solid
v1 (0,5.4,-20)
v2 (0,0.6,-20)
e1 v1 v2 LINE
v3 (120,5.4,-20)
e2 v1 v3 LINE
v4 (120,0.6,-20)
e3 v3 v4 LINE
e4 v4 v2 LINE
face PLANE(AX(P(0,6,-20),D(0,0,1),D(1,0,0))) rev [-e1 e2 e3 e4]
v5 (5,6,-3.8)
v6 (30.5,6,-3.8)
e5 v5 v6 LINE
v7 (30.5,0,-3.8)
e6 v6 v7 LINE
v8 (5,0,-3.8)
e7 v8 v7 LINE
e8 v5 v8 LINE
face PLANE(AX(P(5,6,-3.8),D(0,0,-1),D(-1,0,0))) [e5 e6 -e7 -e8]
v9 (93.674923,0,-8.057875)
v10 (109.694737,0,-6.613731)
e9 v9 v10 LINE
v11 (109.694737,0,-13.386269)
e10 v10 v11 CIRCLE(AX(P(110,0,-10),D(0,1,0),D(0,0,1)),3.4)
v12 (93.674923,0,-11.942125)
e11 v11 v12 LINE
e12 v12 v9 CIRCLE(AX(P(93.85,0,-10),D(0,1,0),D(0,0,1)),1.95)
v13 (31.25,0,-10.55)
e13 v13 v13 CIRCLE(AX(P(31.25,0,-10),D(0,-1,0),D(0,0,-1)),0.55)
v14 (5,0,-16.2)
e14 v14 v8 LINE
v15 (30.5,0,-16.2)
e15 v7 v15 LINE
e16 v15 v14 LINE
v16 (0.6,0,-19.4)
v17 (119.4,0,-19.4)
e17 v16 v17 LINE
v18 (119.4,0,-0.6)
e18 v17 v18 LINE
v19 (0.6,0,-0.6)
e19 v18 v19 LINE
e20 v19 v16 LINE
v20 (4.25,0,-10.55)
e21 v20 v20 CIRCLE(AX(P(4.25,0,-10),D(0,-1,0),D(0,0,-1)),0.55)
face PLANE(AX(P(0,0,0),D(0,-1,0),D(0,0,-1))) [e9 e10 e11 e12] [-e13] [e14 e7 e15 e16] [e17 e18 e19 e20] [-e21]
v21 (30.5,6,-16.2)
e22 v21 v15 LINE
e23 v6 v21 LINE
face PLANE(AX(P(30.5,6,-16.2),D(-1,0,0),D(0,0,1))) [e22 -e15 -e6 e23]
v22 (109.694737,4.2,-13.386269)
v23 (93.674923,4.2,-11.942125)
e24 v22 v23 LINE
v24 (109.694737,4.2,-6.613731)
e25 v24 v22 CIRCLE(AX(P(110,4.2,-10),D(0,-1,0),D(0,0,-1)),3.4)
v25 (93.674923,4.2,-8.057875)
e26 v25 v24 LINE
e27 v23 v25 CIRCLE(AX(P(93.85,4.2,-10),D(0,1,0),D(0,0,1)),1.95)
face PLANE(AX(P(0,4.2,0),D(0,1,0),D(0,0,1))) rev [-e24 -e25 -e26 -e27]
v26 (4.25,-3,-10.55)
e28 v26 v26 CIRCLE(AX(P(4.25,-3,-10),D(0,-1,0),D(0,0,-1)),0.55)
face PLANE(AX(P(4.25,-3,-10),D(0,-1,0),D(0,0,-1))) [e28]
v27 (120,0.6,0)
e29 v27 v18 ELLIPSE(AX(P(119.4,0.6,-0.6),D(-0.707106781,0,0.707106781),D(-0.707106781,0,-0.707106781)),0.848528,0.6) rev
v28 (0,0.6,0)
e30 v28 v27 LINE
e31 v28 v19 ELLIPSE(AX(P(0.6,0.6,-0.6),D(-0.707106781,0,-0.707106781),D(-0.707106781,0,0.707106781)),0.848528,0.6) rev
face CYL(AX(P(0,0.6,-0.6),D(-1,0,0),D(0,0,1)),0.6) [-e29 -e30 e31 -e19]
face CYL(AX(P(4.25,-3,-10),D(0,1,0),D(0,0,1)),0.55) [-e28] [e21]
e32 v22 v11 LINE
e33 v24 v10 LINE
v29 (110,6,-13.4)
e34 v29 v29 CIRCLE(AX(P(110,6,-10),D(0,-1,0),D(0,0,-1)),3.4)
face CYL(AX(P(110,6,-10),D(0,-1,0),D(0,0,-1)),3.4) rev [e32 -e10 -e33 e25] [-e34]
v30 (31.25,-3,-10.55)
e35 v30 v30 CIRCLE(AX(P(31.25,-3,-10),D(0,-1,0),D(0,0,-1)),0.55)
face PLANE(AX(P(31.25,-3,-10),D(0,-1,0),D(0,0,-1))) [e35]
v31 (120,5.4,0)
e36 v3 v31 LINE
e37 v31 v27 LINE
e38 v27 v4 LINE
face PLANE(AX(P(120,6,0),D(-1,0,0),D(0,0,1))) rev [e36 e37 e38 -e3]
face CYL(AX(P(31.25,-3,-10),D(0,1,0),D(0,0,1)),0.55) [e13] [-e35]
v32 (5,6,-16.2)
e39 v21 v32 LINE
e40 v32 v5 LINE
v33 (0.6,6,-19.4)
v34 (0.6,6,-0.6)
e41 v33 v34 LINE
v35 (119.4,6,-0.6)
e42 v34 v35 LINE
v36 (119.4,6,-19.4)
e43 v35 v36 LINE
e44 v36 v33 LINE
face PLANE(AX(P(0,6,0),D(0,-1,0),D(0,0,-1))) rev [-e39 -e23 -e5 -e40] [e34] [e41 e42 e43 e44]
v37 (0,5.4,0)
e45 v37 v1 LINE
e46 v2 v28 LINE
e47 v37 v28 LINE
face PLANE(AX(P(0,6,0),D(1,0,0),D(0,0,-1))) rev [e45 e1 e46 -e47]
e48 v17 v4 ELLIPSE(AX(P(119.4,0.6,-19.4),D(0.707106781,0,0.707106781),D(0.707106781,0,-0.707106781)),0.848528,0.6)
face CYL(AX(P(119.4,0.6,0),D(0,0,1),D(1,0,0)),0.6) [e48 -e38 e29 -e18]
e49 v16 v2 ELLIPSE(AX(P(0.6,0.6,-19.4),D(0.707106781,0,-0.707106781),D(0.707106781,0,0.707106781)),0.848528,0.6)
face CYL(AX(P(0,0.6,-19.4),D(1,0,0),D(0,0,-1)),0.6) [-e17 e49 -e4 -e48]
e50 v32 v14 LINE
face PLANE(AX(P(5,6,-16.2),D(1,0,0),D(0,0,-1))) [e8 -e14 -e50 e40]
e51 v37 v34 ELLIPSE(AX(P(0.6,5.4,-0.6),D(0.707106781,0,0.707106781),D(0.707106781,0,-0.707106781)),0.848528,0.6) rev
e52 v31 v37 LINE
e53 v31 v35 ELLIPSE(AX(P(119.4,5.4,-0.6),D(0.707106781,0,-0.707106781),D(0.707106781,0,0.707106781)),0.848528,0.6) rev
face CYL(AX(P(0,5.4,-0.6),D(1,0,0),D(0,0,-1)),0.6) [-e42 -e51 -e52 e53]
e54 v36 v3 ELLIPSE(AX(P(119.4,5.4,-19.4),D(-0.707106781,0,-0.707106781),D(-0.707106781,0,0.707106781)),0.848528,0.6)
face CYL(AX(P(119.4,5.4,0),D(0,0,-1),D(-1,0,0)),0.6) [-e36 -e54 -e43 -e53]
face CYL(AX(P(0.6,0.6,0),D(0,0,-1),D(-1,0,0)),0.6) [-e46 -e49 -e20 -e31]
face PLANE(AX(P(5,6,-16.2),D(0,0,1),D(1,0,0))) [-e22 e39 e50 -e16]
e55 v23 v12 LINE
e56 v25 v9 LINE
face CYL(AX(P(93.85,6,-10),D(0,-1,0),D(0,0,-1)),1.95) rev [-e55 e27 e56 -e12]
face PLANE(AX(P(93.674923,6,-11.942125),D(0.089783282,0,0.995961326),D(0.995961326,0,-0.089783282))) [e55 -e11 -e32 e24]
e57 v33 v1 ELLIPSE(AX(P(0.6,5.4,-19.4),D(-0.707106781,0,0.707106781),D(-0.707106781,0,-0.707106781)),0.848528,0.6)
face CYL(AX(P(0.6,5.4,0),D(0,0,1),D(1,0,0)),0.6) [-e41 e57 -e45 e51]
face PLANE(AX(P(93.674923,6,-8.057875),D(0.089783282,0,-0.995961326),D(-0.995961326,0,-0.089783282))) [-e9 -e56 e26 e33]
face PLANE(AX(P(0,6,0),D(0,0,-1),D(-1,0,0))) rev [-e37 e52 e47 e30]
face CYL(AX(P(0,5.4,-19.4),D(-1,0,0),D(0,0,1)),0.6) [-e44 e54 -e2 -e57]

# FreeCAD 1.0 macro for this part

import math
import FreeCAD as App
import Part
import Sketcher

V = App.Vector


def edges_at(feature, points):
    """Names of the edges that pass closest to the given points."""
    edges = feature.Shape.Edges
    near = lambda p: min(range(len(edges)), key=lambda i: edges[i].distToShape(Part.Vertex(*p))[0])
    return sorted({f"Edge{near(p) + 1}" for p in points})

doc = App.newDocument("Part")
body = doc.addObject("PartDesign::Body", "Body")

sketch1 = body.newObject("Sketcher::SketchObject", "Sketch")
sketch1.AttachmentSupport = (doc.getObject("XZ_Plane"), [""])
sketch1.MapMode = "FlatFace"
sketch1.addGeometry([
    Part.LineSegment(V(0, -20, 0), V(0, 0, 0)),
    Part.LineSegment(V(0, 0, 0), V(120, 0, 0)),
    Part.LineSegment(V(120, 0, 0), V(120, -20, 0)),
    Part.LineSegment(V(120, -20, 0), V(0, -20, 0)),
    Part.LineSegment(V(30.5, -3.8, 0), V(5, -3.8, 0)),
    Part.LineSegment(V(5, -3.8, 0), V(5, -16.2, 0)),
    Part.LineSegment(V(5, -16.2, 0), V(30.5, -16.2, 0)),
    Part.LineSegment(V(30.5, -16.2, 0), V(30.5, -3.8, 0)),
    Part.ArcOfCircle(Part.Circle(V(93.8, -10, 0), V(0, 0, 1), 1.9), math.radians(95), math.radians(265)),
    Part.LineSegment(V(93.7, -11.9, 0), V(109.7, -13.4, 0)),
    Part.ArcOfCircle(Part.Circle(V(110, -10, 0), V(0, 0, 1), 3.4), math.radians(-95), math.radians(95)),
    Part.LineSegment(V(109.7, -6.6, 0), V(93.7, -8.1, 0)),
], False)
sketch1.addConstraint([
    Sketcher.Constraint("Coincident", 0, 2, 1, 1),
    Sketcher.Constraint("Coincident", 1, 2, 2, 1),
    Sketcher.Constraint("Coincident", 2, 2, 3, 1),
    Sketcher.Constraint("Coincident", 3, 2, 0, 1),
    Sketcher.Constraint("Coincident", 4, 2, 5, 1),
    Sketcher.Constraint("Coincident", 5, 2, 6, 1),
    Sketcher.Constraint("Coincident", 6, 2, 7, 1),
    Sketcher.Constraint("Coincident", 7, 2, 4, 1),
    Sketcher.Constraint("Tangent", 8, 2, 9, 1),
    Sketcher.Constraint("Tangent", 9, 2, 10, 1),
    Sketcher.Constraint("Tangent", 10, 2, 11, 1),
    Sketcher.Constraint("Tangent", 11, 2, 8, 1),
    Sketcher.Constraint("Vertical", 0),
    Sketcher.Constraint("Horizontal", 1),
    Sketcher.Constraint("Vertical", 2),
    Sketcher.Constraint("Horizontal", 3),
    Sketcher.Constraint("Horizontal", 4),
    Sketcher.Constraint("Vertical", 5),
    Sketcher.Constraint("Horizontal", 6),
    Sketcher.Constraint("Vertical", 7),
    Sketcher.Constraint("Coincident", 0, 2, -1, 1),
    Sketcher.Constraint("Horizontal", 8, 3, 10, 3),
    Sketcher.Constraint("Radius", 10, 3.4),
    Sketcher.Constraint("DistanceX", 1, 1, 1, 2, 120.0),
    Sketcher.Constraint("DistanceY", 0, 1, 0, 2, 20.0),
    Sketcher.Constraint("Radius", 8, 1.95),
    Sketcher.Constraint("DistanceX", 4, 2, 4, 1, 25.5),
    Sketcher.Constraint("DistanceY", 5, 2, 5, 1, 12.4),
    Sketcher.Constraint("DistanceY", 8, 3, -1, 1, 10.0),
    Sketcher.Constraint("DistanceX", -1, 1, 10, 3, 110.0),
    Sketcher.Constraint("DistanceX", -1, 1, 4, 2, 5.0),
    Sketcher.Constraint("DistanceY", 4, 2, -1, 1, 3.8),
    Sketcher.Constraint("DistanceX", -1, 1, 8, 3, 93.85),
])
pad1 = body.newObject("PartDesign::Pad", "Pad")
pad1.Profile = sketch1
pad1.Length = 6
pad1.Reversed = True

sketch2 = body.newObject("Sketcher::SketchObject", "Sketch001")
sketch2.AttachmentSupport = (doc.getObject("XZ_Plane"), [""])
sketch2.MapMode = "FlatFace"
sketch2.addGeometry([
    Part.Circle(V(4.2, -10, 0), V(0, 0, 1), 0.6),
    Part.Circle(V(31.2, -10, 0), V(0, 0, 1), 0.6),
], False)
sketch2.addConstraint([
    Sketcher.Constraint("Equal", 0, 1),
    Sketcher.Constraint("Horizontal", 0, 3, 1, 3),
    Sketcher.Constraint("Diameter", 0, 1.1),
    Sketcher.Constraint("DistanceY", 0, 3, -1, 1, 10.0),
    Sketcher.Constraint("DistanceX", 0, 3, 1, 3, 27.0),
    Sketcher.Constraint("DistanceX", -1, 1, 0, 3, 4.25),
])
pad2 = body.newObject("PartDesign::Pad", "Pad001")
pad2.Profile = sketch2
pad2.Length = 3

sketch3 = body.newObject("Sketcher::SketchObject", "Sketch002")
sketch3.AttachmentSupport = (doc.getObject("XZ_Plane"), [""])
sketch3.MapMode = "FlatFace"
sketch3.AttachmentOffset = App.Placement(V(0, 0, -6), App.Rotation())
sketch3.addGeometry([
    Part.LineSegment(V(84, -20, 0), V(84, 0, 0)),
    Part.LineSegment(V(84, 0, 0), V(120, 0, 0)),
    Part.LineSegment(V(120, 0, 0), V(120, -20, 0)),
    Part.LineSegment(V(120, -20, 0), V(84, -20, 0)),
], False)
sketch3.addConstraint([
    Sketcher.Constraint("Coincident", 0, 2, 1, 1),
    Sketcher.Constraint("Coincident", 1, 2, 2, 1),
    Sketcher.Constraint("Coincident", 2, 2, 3, 1),
    Sketcher.Constraint("Coincident", 3, 2, 0, 1),
    Sketcher.Constraint("Vertical", 0),
    Sketcher.Constraint("Horizontal", 1),
    Sketcher.Constraint("Vertical", 2),
    Sketcher.Constraint("Horizontal", 3),
    Sketcher.Constraint("PointOnObject", 0, 2, -1),
    Sketcher.Constraint("DistanceX", 1, 1, 1, 2, 36.0),
    Sketcher.Constraint("DistanceY", 0, 1, 0, 2, 20.0),
    Sketcher.Constraint("DistanceX", -1, 1, 0, 2, 84.0),
])
pad3 = body.newObject("PartDesign::Pad", "Pad002")
pad3.Profile = sketch3
pad3.Length = 1.8

sketch4 = body.newObject("Sketcher::SketchObject", "Sketch003")
sketch4.AttachmentSupport = (doc.getObject("XZ_Plane"), [""])
sketch4.MapMode = "FlatFace"
sketch4.AttachmentOffset = App.Placement(V(0, 0, -4.2), App.Rotation())
sketch4.addGeometry(Part.Circle(V(110, -10, 0), V(0, 0, 1), 3.4), False)
sketch4.addConstraint([
    Sketcher.Constraint("Diameter", 0, 6.8),
    Sketcher.Constraint("DistanceX", -1, 1, 0, 3, 110.0),
    Sketcher.Constraint("DistanceY", 0, 3, -1, 1, 10.0),
])
pocket1 = body.newObject("PartDesign::Pocket", "Pocket")
pocket1.Profile = sketch4
pocket1.Length = 1.8
doc.recompute()

fillet = body.newObject("PartDesign::Fillet", "Fillet")
fillet.Base = (pocket1, edges_at(pocket1, [
    (120, 6, -10),
    (60, 6, -20),
    (0, 6, -10),
    (60, 0, -20),
    (120, 0, -10),
    (60, 0, 0),
    (0, 0, -10),
    (60, 6, 0),
]))
fillet.Radius = 0.6

doc.recompute()
